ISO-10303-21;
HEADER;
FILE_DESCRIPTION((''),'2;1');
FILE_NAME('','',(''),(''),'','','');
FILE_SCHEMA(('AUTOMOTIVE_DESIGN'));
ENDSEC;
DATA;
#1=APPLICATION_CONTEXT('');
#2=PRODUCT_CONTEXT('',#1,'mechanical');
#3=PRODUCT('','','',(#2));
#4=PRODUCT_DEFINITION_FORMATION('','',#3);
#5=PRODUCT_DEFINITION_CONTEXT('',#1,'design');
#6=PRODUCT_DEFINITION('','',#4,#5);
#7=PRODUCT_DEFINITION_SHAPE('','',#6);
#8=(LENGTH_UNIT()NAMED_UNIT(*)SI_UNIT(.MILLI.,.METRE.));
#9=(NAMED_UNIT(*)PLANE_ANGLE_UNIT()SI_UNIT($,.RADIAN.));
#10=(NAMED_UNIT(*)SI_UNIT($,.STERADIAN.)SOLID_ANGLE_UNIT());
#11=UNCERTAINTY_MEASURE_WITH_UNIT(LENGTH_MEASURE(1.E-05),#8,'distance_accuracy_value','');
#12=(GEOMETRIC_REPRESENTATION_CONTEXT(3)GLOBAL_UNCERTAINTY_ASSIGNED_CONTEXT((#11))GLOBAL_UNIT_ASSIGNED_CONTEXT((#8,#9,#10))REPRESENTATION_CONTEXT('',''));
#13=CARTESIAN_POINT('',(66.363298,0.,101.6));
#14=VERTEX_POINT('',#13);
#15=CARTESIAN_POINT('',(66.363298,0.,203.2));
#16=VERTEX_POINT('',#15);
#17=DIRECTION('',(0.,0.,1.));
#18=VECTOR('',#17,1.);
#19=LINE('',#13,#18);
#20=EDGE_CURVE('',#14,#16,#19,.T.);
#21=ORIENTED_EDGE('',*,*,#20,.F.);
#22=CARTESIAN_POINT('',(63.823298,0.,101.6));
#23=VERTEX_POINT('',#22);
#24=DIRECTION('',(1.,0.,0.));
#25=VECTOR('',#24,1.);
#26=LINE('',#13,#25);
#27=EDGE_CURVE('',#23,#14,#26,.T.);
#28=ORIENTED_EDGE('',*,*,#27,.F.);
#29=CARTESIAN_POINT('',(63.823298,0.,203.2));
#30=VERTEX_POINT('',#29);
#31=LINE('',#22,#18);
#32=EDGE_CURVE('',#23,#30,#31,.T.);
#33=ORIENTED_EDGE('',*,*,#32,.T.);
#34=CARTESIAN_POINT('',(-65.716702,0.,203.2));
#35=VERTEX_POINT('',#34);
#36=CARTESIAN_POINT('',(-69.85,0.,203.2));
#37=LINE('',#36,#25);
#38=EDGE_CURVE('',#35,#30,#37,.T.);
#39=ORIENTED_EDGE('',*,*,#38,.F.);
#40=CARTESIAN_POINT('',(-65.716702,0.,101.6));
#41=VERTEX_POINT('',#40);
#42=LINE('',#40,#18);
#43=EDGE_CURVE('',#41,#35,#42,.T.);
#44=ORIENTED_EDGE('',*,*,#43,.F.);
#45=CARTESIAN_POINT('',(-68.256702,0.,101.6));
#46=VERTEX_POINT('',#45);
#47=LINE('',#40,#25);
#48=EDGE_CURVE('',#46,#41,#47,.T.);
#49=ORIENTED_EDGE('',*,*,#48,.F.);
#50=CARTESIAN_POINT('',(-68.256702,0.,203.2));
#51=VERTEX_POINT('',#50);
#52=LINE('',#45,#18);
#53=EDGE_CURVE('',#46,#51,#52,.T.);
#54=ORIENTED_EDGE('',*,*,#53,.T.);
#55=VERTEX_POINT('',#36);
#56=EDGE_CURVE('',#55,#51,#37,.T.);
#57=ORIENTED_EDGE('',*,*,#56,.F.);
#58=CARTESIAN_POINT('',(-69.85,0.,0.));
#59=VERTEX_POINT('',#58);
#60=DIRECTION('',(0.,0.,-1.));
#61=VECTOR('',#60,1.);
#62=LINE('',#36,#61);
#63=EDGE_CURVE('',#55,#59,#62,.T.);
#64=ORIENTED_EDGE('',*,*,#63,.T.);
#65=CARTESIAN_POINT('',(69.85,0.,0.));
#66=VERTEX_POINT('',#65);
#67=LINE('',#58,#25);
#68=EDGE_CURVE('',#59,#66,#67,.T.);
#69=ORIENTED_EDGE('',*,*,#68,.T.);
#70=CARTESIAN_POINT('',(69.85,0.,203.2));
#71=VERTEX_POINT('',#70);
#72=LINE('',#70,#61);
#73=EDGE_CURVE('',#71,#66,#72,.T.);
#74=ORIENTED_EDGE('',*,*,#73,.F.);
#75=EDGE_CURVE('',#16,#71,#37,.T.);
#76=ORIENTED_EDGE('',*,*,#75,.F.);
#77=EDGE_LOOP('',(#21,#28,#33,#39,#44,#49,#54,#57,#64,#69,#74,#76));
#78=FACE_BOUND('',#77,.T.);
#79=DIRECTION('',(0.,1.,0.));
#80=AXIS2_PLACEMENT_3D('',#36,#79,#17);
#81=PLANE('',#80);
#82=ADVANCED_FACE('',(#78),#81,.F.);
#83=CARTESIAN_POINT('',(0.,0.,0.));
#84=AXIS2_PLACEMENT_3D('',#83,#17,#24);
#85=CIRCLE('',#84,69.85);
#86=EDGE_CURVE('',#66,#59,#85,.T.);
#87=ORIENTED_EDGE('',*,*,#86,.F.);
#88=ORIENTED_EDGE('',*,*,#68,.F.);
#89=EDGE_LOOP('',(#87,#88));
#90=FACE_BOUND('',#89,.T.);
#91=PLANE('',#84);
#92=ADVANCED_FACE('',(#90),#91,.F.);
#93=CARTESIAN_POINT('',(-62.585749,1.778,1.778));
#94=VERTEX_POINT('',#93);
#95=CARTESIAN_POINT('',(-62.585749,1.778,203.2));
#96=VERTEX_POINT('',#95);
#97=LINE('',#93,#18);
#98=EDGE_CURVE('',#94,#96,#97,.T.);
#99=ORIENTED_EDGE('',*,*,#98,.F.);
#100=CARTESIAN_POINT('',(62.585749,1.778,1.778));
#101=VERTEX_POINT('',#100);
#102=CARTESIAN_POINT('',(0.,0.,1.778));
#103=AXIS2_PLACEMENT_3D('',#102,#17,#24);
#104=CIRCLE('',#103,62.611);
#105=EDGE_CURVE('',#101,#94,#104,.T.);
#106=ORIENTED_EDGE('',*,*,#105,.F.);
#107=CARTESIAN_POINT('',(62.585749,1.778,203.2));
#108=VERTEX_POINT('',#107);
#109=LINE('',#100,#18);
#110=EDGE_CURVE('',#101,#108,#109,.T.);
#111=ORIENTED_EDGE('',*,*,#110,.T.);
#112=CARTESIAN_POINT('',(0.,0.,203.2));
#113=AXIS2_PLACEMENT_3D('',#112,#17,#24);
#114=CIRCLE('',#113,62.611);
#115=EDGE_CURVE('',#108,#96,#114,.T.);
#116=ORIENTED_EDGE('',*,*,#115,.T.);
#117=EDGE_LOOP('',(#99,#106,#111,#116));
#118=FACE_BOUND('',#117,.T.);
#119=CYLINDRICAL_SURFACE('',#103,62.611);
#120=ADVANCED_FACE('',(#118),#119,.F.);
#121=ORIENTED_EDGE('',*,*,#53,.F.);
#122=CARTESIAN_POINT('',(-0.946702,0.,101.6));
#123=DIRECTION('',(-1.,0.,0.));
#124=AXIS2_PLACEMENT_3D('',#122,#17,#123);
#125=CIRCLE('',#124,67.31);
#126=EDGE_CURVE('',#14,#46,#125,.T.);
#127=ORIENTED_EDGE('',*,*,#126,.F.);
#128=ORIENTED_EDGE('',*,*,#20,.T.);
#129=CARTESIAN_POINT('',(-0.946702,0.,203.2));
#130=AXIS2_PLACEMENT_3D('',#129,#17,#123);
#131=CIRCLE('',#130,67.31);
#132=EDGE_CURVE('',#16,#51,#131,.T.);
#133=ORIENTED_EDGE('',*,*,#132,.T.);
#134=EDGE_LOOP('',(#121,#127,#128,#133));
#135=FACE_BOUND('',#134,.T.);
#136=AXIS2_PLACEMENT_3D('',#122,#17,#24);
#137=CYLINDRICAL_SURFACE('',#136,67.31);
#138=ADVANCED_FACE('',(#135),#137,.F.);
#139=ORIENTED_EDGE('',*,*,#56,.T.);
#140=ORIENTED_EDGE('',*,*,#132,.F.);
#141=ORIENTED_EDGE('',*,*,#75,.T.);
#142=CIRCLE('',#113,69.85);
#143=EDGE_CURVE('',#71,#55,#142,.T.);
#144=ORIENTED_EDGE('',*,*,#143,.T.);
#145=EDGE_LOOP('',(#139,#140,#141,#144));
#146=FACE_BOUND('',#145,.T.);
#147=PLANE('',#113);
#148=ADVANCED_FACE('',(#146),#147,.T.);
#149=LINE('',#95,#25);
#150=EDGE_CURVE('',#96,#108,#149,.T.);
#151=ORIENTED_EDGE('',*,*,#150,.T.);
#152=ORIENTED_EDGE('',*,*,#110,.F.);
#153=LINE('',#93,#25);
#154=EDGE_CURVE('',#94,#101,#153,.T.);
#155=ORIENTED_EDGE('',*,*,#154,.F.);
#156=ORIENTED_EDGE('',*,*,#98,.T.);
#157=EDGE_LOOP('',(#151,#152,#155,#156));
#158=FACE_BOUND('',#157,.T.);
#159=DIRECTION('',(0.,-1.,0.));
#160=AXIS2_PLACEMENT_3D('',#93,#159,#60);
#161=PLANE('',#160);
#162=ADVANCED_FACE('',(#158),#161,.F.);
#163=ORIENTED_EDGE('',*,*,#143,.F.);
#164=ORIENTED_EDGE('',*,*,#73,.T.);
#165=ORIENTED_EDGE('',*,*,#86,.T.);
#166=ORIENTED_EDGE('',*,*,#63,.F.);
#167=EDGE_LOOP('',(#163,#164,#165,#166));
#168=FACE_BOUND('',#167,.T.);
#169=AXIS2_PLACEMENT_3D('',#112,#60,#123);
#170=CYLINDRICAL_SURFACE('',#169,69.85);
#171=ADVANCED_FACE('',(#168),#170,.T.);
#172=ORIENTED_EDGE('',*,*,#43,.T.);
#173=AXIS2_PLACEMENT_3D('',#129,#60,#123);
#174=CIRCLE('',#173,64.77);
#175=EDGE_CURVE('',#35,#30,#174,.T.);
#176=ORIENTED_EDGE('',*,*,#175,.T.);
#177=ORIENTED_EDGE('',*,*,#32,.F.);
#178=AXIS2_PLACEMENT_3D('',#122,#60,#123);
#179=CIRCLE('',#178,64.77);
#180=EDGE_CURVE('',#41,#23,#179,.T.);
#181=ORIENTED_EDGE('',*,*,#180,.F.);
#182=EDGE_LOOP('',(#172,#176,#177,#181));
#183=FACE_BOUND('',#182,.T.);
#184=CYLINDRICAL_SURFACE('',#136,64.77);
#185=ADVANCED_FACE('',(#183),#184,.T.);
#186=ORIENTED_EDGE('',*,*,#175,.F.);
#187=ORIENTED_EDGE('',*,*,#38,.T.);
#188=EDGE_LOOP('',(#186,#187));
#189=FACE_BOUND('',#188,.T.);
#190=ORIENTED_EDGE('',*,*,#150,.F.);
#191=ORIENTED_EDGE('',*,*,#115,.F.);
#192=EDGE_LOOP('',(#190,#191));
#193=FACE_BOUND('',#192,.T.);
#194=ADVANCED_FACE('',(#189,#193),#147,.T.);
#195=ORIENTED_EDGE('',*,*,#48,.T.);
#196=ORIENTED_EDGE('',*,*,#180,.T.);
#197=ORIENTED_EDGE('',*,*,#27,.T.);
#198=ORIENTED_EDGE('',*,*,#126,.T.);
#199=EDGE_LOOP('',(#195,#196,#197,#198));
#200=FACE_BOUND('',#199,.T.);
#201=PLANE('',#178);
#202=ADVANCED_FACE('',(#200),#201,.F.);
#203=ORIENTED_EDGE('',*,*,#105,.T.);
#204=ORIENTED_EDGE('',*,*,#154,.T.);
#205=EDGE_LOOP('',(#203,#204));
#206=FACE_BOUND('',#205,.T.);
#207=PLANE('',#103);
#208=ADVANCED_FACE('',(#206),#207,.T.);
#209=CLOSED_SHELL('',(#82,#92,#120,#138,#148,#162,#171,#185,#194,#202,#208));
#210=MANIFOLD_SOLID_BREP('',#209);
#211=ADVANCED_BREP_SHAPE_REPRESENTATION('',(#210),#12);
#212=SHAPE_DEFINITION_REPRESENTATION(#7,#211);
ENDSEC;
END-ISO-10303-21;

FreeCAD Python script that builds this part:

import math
import FreeCAD as App
import Part
import Sketcher

V = App.Vector
Q = App.Units.Quantity

doc = App.newDocument("Part")
body = doc.addObject("PartDesign::Body", "Body")

# Sketch on XY plane
sketch1 = body.newObject("Sketcher::SketchObject", "Sketch")
sketch1.AttachmentSupport = (doc.getObject("XY_Plane"), [""])
sketch1.MapMode = "FlatFace"
sketch1.addGeometry(Part.LineSegment(V(-70, 0, 0), V(70, 0, 0)), False)
sketch1.addGeometry(Part.ArcOfCircle(Part.Circle(V(0, 0, 0), V(0, 0, 1), 70), math.radians(0), math.radians(180)), False)
sketch1.addConstraint(Sketcher.Constraint("Coincident", 0, 1, 1, 2))
sketch1.addConstraint(Sketcher.Constraint("Coincident", 1, 1, 0, 2))
sketch1.addConstraint(Sketcher.Constraint("Horizontal", 0))
sketch1.addConstraint(Sketcher.Constraint("Coincident", 1, 3, -1, 1))
sketch1.addConstraint(Sketcher.Constraint("PointOnObject", 0, 1, -1))
sketch1.addConstraint(Sketcher.Constraint("Radius", 1, Q("2.75 in")))
pad1 = body.newObject("PartDesign::Pad", "Pad")
pad1.Profile = sketch1
pad1.Length = Q("8 in")

# Sketch on XY plane
sketch2 = body.newObject("Sketcher::SketchObject", "Sketch001")
sketch2.AttachmentSupport = (doc.getObject("XY_Plane"), [""])
sketch2.MapMode = "FlatFace"
sketch2.AttachmentOffset = App.Placement(V(0, 0, 8 * 25.4), App.Rotation())
sketch2.addGeometry(Part.LineSegment(V(-63, 2, 0), V(63, 2, 0)), False)
sketch2.addGeometry(Part.ArcOfCircle(Part.Circle(V(0, 0, 0), V(0, 0, 1), 63), math.radians(2), math.radians(178)), False)
sketch2.addConstraint(Sketcher.Constraint("Coincident", 0, 1, 1, 2))
sketch2.addConstraint(Sketcher.Constraint("Coincident", 1, 1, 0, 2))
sketch2.addConstraint(Sketcher.Constraint("Horizontal", 0))
sketch2.addConstraint(Sketcher.Constraint("Coincident", 1, 3, -1, 1))
sketch2.addConstraint(Sketcher.Constraint("Radius", 1, Q("2.465 in")))
sketch2.addConstraint(Sketcher.Constraint("DistanceY", -1, 1, 0, 1, Q("0.07 in")))
pocket1 = body.newObject("PartDesign::Pocket", "Pocket")
pocket1.Profile = sketch2
pocket1.Length = Q("7.93 in")

# Sketch on XY plane
sketch3 = body.newObject("Sketcher::SketchObject", "Sketch002")
sketch3.AttachmentSupport = (doc.getObject("XY_Plane"), [""])
sketch3.MapMode = "FlatFace"
sketch3.AttachmentOffset = App.Placement(V(0, 0, 8 * 25.4), App.Rotation())
sketch3.addGeometry(Part.LineSegment(V(63.8, 0, 0), V(66.4, 0, 0)), False)
sketch3.addGeometry(Part.ArcOfCircle(Part.Circle(V(-0.9, 0, 0), V(0, 0, 1), 67.3), math.radians(0), math.radians(180)), False)
sketch3.addGeometry(Part.LineSegment(V(-68.3, 0, 0), V(-65.7, 0, 0)), False)
sketch3.addGeometry(Part.ArcOfCircle(Part.Circle(V(-0.9, 0, 0), V(0, 0, 1), 64.8), math.radians(0), math.radians(180)), False)
sketch3.addConstraint(Sketcher.Constraint("Coincident", 0, 2, 1, 1))
sketch3.addConstraint(Sketcher.Constraint("Coincident", 1, 2, 2, 1))
sketch3.addConstraint(Sketcher.Constraint("Coincident", 2, 2, 3, 2))
sketch3.addConstraint(Sketcher.Constraint("Coincident", 3, 1, 0, 1))
sketch3.addConstraint(Sketcher.Constraint("Horizontal", 0))
sketch3.addConstraint(Sketcher.Constraint("Horizontal", 2))
sketch3.addConstraint(Sketcher.Constraint("Coincident", 3, 3, 1, 3))
sketch3.addConstraint(Sketcher.Constraint("PointOnObject", 1, 3, -1))
sketch3.addConstraint(Sketcher.Constraint("PointOnObject", 0, 2, -1))
sketch3.addConstraint(Sketcher.Constraint("PointOnObject", 1, 2, -1))
sketch3.addConstraint(Sketcher.Constraint("Radius", 1, Q("2.65 in")))
sketch3.addConstraint(Sketcher.Constraint("Radius", 3, Q("2.55 in")))
sketch3.addConstraint(Sketcher.Constraint("DistanceX", 1, 3, -1, 1, 0.946702))
pocket2 = body.newObject("PartDesign::Pocket", "Pocket001")
pocket2.Profile = sketch3
pocket2.Length = Q("4 in")

doc.recompute()
